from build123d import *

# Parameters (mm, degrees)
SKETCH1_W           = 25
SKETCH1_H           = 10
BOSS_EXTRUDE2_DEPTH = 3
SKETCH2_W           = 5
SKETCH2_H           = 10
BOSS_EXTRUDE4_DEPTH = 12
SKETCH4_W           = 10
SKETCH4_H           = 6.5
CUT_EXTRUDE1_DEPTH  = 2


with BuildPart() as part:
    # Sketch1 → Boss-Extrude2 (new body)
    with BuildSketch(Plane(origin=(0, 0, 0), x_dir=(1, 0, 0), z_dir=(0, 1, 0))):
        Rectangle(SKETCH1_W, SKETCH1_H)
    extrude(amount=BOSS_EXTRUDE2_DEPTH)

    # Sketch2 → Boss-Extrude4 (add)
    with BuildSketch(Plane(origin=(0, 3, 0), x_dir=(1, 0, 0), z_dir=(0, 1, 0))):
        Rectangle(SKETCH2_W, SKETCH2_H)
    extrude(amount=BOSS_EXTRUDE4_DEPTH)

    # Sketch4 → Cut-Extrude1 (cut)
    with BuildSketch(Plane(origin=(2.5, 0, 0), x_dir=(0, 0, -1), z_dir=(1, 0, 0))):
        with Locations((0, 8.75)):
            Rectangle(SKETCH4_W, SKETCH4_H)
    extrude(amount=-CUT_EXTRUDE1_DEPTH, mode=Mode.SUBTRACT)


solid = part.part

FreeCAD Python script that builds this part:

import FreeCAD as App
import Part
import Sketcher
from FreeCAD import Vector


def add_polygon(sketch, points):
    """Adds a closed chain of lines whose ends are joined by coincident constraints."""
    first, n = sketch.GeometryCount, len(points)
    for a, b in zip(points, points[1:] + points[:1]):
        sketch.addGeometry(Part.LineSegment(App.Vector(*a, 0), App.Vector(*b, 0)), False)
    for i in range(n):
        sketch.addConstraint(Sketcher.Constraint("Coincident", first + i, 2, first + (i + 1) % n, 1))

doc = App.newDocument("Part")
body = doc.addObject("PartDesign::Body", "Body")

# Sketch on XZ plane
sketch1 = body.newObject("Sketcher::SketchObject", "Sketch")
sketch1.AttachmentSupport = (doc.getObject("XZ_Plane"), [""])
sketch1.MapMode = "FlatFace"
add_polygon(sketch1, [(-12, -5), (-12, 5), (12, 5), (12, -5)])  # lines 0-3
sketch1.addConstraint(Sketcher.Constraint("Vertical", 0))
sketch1.addConstraint(Sketcher.Constraint("Horizontal", 1))
sketch1.addConstraint(Sketcher.Constraint("Vertical", 2))
sketch1.addConstraint(Sketcher.Constraint("Horizontal", 3))
sketch1.addConstraint(Sketcher.Constraint("Symmetric", 0, 2, 2, 2, -1, 1))
sketch1.addConstraint(Sketcher.Constraint("DistanceX", 1, 1, 1, 2, 25.0))
sketch1.addConstraint(Sketcher.Constraint("DistanceY", 0, 1, 0, 2, 10.0))
pad1 = body.newObject("PartDesign::Pad", "Pad")
pad1.Profile = sketch1
pad1.Length = 3
pad1.Reversed = True

# Sketch on XZ plane
sketch2 = body.newObject("Sketcher::SketchObject", "Sketch001")
sketch2.AttachmentSupport = (doc.getObject("XZ_Plane"), [""])
sketch2.MapMode = "FlatFace"
sketch2.AttachmentOffset = App.Placement(Vector(0, 0, -3), App.Rotation())
add_polygon(sketch2, [(-2, -5), (-2, 5), (2, 5), (2, -5)])  # lines 0-3
sketch2.addConstraint(Sketcher.Constraint("Vertical", 0))
sketch2.addConstraint(Sketcher.Constraint("Horizontal", 1))
sketch2.addConstraint(Sketcher.Constraint("Vertical", 2))
sketch2.addConstraint(Sketcher.Constraint("Horizontal", 3))
sketch2.addConstraint(Sketcher.Constraint("Symmetric", 0, 2, 2, 2, -1, 1))
sketch2.addConstraint(Sketcher.Constraint("DistanceX", 1, 1, 1, 2, 5.0))
sketch2.addConstraint(Sketcher.Constraint("DistanceY", 0, 1, 0, 2, 10.0))
pad2 = body.newObject("PartDesign::Pad", "Pad001")
pad2.Profile = sketch2
pad2.Length = 12
pad2.Reversed = True

# Sketch on YZ plane
sketch3 = body.newObject("Sketcher::SketchObject", "Sketch002")
sketch3.AttachmentSupport = (doc.getObject("YZ_Plane"), [""])
sketch3.MapMode = "FlatFace"
sketch3.AttachmentOffset = App.Placement(Vector(0, 0, 2.5), App.Rotation())
add_polygon(sketch3, [(12, 5), (6, 5), (6, -5), (12, -5)])  # lines 0-3
sketch3.addConstraint(Sketcher.Constraint("Horizontal", 0))
sketch3.addConstraint(Sketcher.Constraint("Vertical", 1))
sketch3.addConstraint(Sketcher.Constraint("Horizontal", 2))
sketch3.addConstraint(Sketcher.Constraint("Vertical", 3))
sketch3.addConstraint(Sketcher.Constraint("DistanceY", 1, 2, 1, 1, 10.0))
sketch3.addConstraint(Sketcher.Constraint("DistanceX", 0, 2, 0, 1, 6.5))
sketch3.addConstraint(Sketcher.Constraint("DistanceY", -1, 1, 0, 2, 5.0))
sketch3.addConstraint(Sketcher.Constraint("DistanceX", -1, 1, 2, 2, 12.0))
pocket1 = body.newObject("PartDesign::Pocket", "Pocket")
pocket1.Profile = sketch3
pocket1.Length = 2

doc.recompute()
